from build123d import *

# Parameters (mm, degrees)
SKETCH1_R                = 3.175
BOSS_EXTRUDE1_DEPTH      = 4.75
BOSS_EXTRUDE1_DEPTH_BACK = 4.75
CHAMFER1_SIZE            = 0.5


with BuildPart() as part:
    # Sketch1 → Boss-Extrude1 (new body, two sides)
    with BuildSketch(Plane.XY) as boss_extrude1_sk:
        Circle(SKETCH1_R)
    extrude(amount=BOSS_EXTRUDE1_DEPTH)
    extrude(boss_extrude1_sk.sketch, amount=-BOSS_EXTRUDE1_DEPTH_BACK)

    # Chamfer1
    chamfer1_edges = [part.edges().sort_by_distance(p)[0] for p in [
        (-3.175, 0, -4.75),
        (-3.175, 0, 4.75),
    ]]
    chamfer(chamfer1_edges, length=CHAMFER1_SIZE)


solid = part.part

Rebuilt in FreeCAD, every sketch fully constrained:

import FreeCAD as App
import Part
import Sketcher
from FreeCAD import Vector
Q = App.Units.Quantity


def edges_at(feature, points):
    """Names of the edges that pass closest to the given points."""
    edges = feature.Shape.Edges
    near = lambda p: min(range(len(edges)), key=lambda i: edges[i].distToShape(Part.Vertex(*p))[0])
    return sorted({f"Edge{near(p) + 1}" for p in points})

doc = App.newDocument("Part")
body = doc.addObject("PartDesign::Body", "Body")

# Sketch on XY plane
sketch1 = doc.addObject("Sketcher::SketchObject", "Sketch")
body.addObject(sketch1)
sketch1.AttachmentSupport = (doc.XY_Plane, [""])
sketch1.MapMode = "FlatFace"
sketch1.addGeometry(Part.Circle(Vector(0, 0, 0), Vector(0, 0, 1), 3.2), False)
sketch1.addConstraint([
    Sketcher.Constraint("Coincident", 0, 3, -1, 1),
    Sketcher.Constraint("Diameter", 0, Q("6.35 mm")),
])
pad1 = doc.addObject("PartDesign::Pad", "Pad")
body.addObject(pad1)
pad1.Profile = sketch1
pad1.Type = "TwoLengths"
pad1.Length = 4.75
pad1.Length2 = 4.75
doc.recompute()

chamfer = doc.addObject("PartDesign::Chamfer", "Chamfer")
body.addObject(chamfer)
chamfer.Base = (pad1, edges_at(pad1, [(-3.175, 0, -4.75), (-3.175, 0, 4.75)]))
chamfer.Size = 0.5

doc.recompute()
